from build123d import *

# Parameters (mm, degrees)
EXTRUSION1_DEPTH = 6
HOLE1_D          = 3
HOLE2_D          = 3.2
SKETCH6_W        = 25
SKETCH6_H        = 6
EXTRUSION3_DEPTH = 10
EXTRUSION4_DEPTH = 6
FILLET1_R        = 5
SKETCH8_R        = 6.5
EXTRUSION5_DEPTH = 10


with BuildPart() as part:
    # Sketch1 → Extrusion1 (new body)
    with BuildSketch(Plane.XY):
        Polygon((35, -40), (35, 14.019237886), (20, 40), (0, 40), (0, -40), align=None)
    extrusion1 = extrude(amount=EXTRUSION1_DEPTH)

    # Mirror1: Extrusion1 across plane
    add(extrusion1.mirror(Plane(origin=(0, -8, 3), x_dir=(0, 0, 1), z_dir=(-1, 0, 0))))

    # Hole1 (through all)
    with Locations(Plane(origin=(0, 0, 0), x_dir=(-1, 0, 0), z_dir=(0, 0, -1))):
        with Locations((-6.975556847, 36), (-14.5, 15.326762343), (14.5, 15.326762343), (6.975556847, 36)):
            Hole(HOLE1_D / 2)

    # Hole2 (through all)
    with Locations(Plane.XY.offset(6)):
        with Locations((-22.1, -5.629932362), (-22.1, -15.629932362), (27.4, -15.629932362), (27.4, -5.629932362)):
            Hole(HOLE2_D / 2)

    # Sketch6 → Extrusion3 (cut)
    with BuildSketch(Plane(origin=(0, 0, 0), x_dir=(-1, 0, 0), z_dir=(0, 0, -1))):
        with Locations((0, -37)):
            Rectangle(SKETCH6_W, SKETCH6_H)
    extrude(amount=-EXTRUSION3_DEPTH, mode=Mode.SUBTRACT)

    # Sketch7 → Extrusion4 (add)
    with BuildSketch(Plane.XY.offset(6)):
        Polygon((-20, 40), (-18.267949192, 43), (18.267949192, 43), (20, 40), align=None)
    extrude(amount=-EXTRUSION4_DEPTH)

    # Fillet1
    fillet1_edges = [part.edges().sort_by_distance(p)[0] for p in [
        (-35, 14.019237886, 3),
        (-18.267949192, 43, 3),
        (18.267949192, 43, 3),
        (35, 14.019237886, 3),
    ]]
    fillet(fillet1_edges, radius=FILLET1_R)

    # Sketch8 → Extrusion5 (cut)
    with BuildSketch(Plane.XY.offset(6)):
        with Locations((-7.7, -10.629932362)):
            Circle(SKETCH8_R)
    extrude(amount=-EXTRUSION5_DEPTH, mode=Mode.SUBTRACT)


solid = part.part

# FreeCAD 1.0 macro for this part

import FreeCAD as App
import Part
import Sketcher
Q = App.Units.Quantity


def edges_at(feature, points):
    """Names of the edges that pass closest to the given points."""
    edges = feature.Shape.Edges
    near = lambda p: min(range(len(edges)), key=lambda i: edges[i].distToShape(Part.Vertex(*p))[0])
    return sorted({f"Edge{near(p) + 1}" for p in points})

doc = App.newDocument("Part")
params = doc.addObject("Spreadsheet::Sheet", "Params")
for row, (alias, value) in enumerate([
    ("sketch1_width", "20 mm"),
    ("sketch1_width2", "35 mm"),
    ("sketch1_height", "80 mm"),
    ("pad1_length", "6 mm"),
    ("sketch2_diameter", "3 mm"),
    ("hole_diameter", "3 mm"),
    ("sketch3_diameter", "3.2 mm"),
    ("hole2_diameter", "3.2 mm"),
    ("sketch4_width", "25 mm"),
    ("sketch4_height", "6 mm"),
    ("pocket1_length", "10 mm"),
    ("sketch5_width", "40 mm"),
    ("pad2_length", "6 mm"),
    ("fillet_radius", "5 mm"),
    ("sketch6_diameter", "13 mm"),
    ("pocket2_length", "10 mm"),
], start=1):
    params.set(f"A{row}", alias)
    params.set(f"B{row}", "=" + value)
    params.setAlias(f"B{row}", alias)

body = doc.addObject("PartDesign::Body", "Body")

# Sketch on XY plane
sketch1 = body.newObject("Sketcher::SketchObject", "Sketch")
sketch1.AttachmentSupport = (doc.getObject("XY_Plane"), [""])
sketch1.MapMode = "FlatFace"
sketch1.addGeometry(Part.LineSegment(App.Vector(35, -40, 0), App.Vector(35, 14, 0)), False)
sketch1.addGeometry(Part.LineSegment(App.Vector(35, 14, 0), App.Vector(20, 40, 0)), False)
sketch1.addGeometry(Part.LineSegment(App.Vector(20, 40, 0), App.Vector(0, 40, 0)), False)
sketch1.addGeometry(Part.LineSegment(App.Vector(0, 40, 0), App.Vector(0, -40, 0)), False)
sketch1.addGeometry(Part.LineSegment(App.Vector(0, -40, 0), App.Vector(35, -40, 0)), False)
sketch1.addConstraint(Sketcher.Constraint("Coincident", 0, 2, 1, 1))
sketch1.addConstraint(Sketcher.Constraint("Coincident", 1, 2, 2, 1))
sketch1.addConstraint(Sketcher.Constraint("Coincident", 2, 2, 3, 1))
sketch1.addConstraint(Sketcher.Constraint("Coincident", 3, 2, 4, 1))
sketch1.addConstraint(Sketcher.Constraint("Coincident", 4, 2, 0, 1))
sketch1.addConstraint(Sketcher.Constraint("Vertical", 0))
sketch1.addConstraint(Sketcher.Constraint("Horizontal", 2))
sketch1.addConstraint(Sketcher.Constraint("Vertical", 3))
sketch1.addConstraint(Sketcher.Constraint("Horizontal", 4))
sketch1.addConstraint(Sketcher.Constraint("Symmetric", 2, 2, 3, 2, -1, 1))
sketch1.addConstraint(Sketcher.Constraint("DistanceX", 2, 2, 2, 1, 20.0))
sketch1.addConstraint(Sketcher.Constraint("DistanceX", 4, 1, 4, 2, 35.0))
sketch1.addConstraint(Sketcher.Constraint("DistanceY", 3, 2, 3, 1, 80.0))
sketch1.addConstraint(Sketcher.Constraint("Angle", 1, Q("120 deg")))
sketch1.setExpression("Constraints[10]", "Params.sketch1_width")
sketch1.setExpression("Constraints[11]", "Params.sketch1_width2")
sketch1.setExpression("Constraints[12]", "Params.sketch1_height")
pad1 = body.newObject("PartDesign::Pad", "Pad")
pad1.Profile = sketch1
pad1.setExpression("Length", "Params.pad1_length")
doc.recompute()

mirrored = body.newObject("PartDesign::Mirrored", "Mirrored")
mirrored.Originals = [pad1]
mirrored.MirrorPlane = (doc.getObject("YZ_Plane"), [""])
body.Tip = mirrored

# Sketch on XY plane
sketch2 = body.newObject("Sketcher::SketchObject", "Sketch001")
sketch2.AttachmentSupport = (doc.getObject("XY_Plane"), [""])
sketch2.MapMode = "FlatFace"
sketch2.addGeometry(Part.Circle(App.Vector(7, 36, 0), App.Vector(0, 0, 1), 1.5), False)
sketch2.addGeometry(Part.Circle(App.Vector(14.5, 15.3, 0), App.Vector(0, 0, 1), 1.5), False)
sketch2.addGeometry(Part.Circle(App.Vector(-14.5, 15.3, 0), App.Vector(0, 0, 1), 1.5), False)
sketch2.addGeometry(Part.Circle(App.Vector(-7, 36, 0), App.Vector(0, 0, 1), 1.5), False)
sketch2.addConstraint(Sketcher.Constraint("Equal", 0, 1))
sketch2.addConstraint(Sketcher.Constraint("Equal", 1, 2))
sketch2.addConstraint(Sketcher.Constraint("Equal", 2, 3))
sketch2.addConstraint(Sketcher.Constraint("Symmetric", 1, 3, 2, 3, -2))
sketch2.addConstraint(Sketcher.Constraint("Symmetric", 0, 3, 3, 3, -2))
sketch2.addConstraint(Sketcher.Constraint("Diameter", 0, 3.0))
sketch2.addConstraint(Sketcher.Constraint("DistanceY", -1, 1, 0, 3, 36.0))
sketch2.addConstraint(Sketcher.Constraint("DistanceX", 2, 3, 1, 3, 29.0))
sketch2.addConstraint(Sketcher.Constraint("DistanceX", -1, 1, 0, 3, 6.975557))
sketch2.addConstraint(Sketcher.Constraint("DistanceY", -1, 1, 1, 3, 15.326762))
sketch2.setExpression("Constraints[5]", "Params.sketch2_diameter")
doc.recompute()
hole = body.newObject("PartDesign::Hole", "Hole")
hole.Profile = sketch2
hole.ThreadType = "None"
hole.setExpression("Diameter", "Params.hole_diameter")
hole.DepthType = "ThroughAll"
hole.Reversed = True

# Sketch on XY plane
sketch3 = body.newObject("Sketcher::SketchObject", "Sketch002")
sketch3.AttachmentSupport = (doc.getObject("XY_Plane"), [""])
sketch3.MapMode = "FlatFace"
sketch3.AttachmentOffset = App.Placement(App.Vector(0, 0, 6), App.Rotation())
sketch3.addGeometry(Part.Circle(App.Vector(-22.1, -5.6, 0), App.Vector(0, 0, 1), 1.6), False)
sketch3.addGeometry(Part.Circle(App.Vector(-22.1, -15.6, 0), App.Vector(0, 0, 1), 1.6), False)
sketch3.addGeometry(Part.Circle(App.Vector(27.4, -15.6, 0), App.Vector(0, 0, 1), 1.6), False)
sketch3.addGeometry(Part.Circle(App.Vector(27.4, -5.6, 0), App.Vector(0, 0, 1), 1.6), False)
sketch3.addConstraint(Sketcher.Constraint("Equal", 0, 1))
sketch3.addConstraint(Sketcher.Constraint("Equal", 1, 2))
sketch3.addConstraint(Sketcher.Constraint("Equal", 2, 3))
sketch3.addConstraint(Sketcher.Constraint("Horizontal", 1, 3, 2, 3))
sketch3.addConstraint(Sketcher.Constraint("Horizontal", 0, 3, 3, 3))
sketch3.addConstraint(Sketcher.Constraint("Vertical", 0, 3, 1, 3))
sketch3.addConstraint(Sketcher.Constraint("Vertical", 2, 3, 3, 3))
sketch3.addConstraint(Sketcher.Constraint("Diameter", 0, 3.2))
sketch3.addConstraint(Sketcher.Constraint("DistanceY", 1, 3, 0, 3, 10.0))
sketch3.addConstraint(Sketcher.Constraint("DistanceX", 0, 3, -1, 1, 22.1))
sketch3.addConstraint(Sketcher.Constraint("DistanceX", -1, 1, 2, 3, 27.4))
sketch3.addConstraint(Sketcher.Constraint("DistanceY", 0, 3, -1, 1, 5.629932))
sketch3.setExpression("Constraints[7]", "Params.sketch3_diameter")
doc.recompute()
hole2 = body.newObject("PartDesign::Hole", "Hole001")
hole2.Profile = sketch3
hole2.ThreadType = "None"
hole2.setExpression("Diameter", "Params.hole2_diameter")
hole2.DepthType = "ThroughAll"

# Sketch on XY plane
sketch4 = body.newObject("Sketcher::SketchObject", "Sketch003")
sketch4.AttachmentSupport = (doc.getObject("XY_Plane"), [""])
sketch4.MapMode = "FlatFace"
sketch4.addGeometry(Part.LineSegment(App.Vector(12, -34, 0), App.Vector(12, -40, 0)), False)
sketch4.addGeometry(Part.LineSegment(App.Vector(12, -40, 0), App.Vector(-12, -40, 0)), False)
sketch4.addGeometry(Part.LineSegment(App.Vector(-12, -40, 0), App.Vector(-12, -34, 0)), False)
sketch4.addGeometry(Part.LineSegment(App.Vector(-12, -34, 0), App.Vector(12, -34, 0)), False)
sketch4.addConstraint(Sketcher.Constraint("Coincident", 0, 2, 1, 1))
sketch4.addConstraint(Sketcher.Constraint("Coincident", 1, 2, 2, 1))
sketch4.addConstraint(Sketcher.Constraint("Coincident", 2, 2, 3, 1))
sketch4.addConstraint(Sketcher.Constraint("Coincident", 3, 2, 0, 1))
sketch4.addConstraint(Sketcher.Constraint("Vertical", 0))
sketch4.addConstraint(Sketcher.Constraint("Horizontal", 1))
sketch4.addConstraint(Sketcher.Constraint("Vertical", 2))
sketch4.addConstraint(Sketcher.Constraint("Horizontal", 3))
sketch4.addConstraint(Sketcher.Constraint("DistanceX", 1, 2, 1, 1, 25.0))
sketch4.addConstraint(Sketcher.Constraint("DistanceY", 0, 2, 0, 1, 6.0))
sketch4.addConstraint(Sketcher.Constraint("DistanceY", 0, 2, -1, 1, 40.0))
sketch4.addConstraint(Sketcher.Constraint("DistanceX", -1, 1, 0, 2, 12.5))
sketch4.setExpression("Constraints[8]", "Params.sketch4_width")
sketch4.setExpression("Constraints[9]", "Params.sketch4_height")
pocket1 = body.newObject("PartDesign::Pocket", "Pocket")
pocket1.Profile = sketch4
pocket1.setExpression("Length", "Params.pocket1_length")
pocket1.Reversed = True

# Sketch on XY plane
sketch5 = body.newObject("Sketcher::SketchObject", "Sketch004")
sketch5.AttachmentSupport = (doc.getObject("XY_Plane"), [""])
sketch5.MapMode = "FlatFace"
sketch5.AttachmentOffset = App.Placement(App.Vector(0, 0, 6), App.Rotation())
sketch5.addGeometry(Part.LineSegment(App.Vector(-18.3, 43, 0), App.Vector(-20, 40, 0)), False)
sketch5.addGeometry(Part.LineSegment(App.Vector(-20, 40, 0), App.Vector(20, 40, 0)), False)
sketch5.addGeometry(Part.LineSegment(App.Vector(20, 40, 0), App.Vector(18.3, 43, 0)), False)
sketch5.addGeometry(Part.LineSegment(App.Vector(18.3, 43, 0), App.Vector(-18.3, 43, 0)), False)
sketch5.addConstraint(Sketcher.Constraint("Coincident", 0, 2, 1, 1))
sketch5.addConstraint(Sketcher.Constraint("Coincident", 1, 2, 2, 1))
sketch5.addConstraint(Sketcher.Constraint("Coincident", 2, 2, 3, 1))
sketch5.addConstraint(Sketcher.Constraint("Coincident", 3, 2, 0, 1))
sketch5.addConstraint(Sketcher.Constraint("Horizontal", 1))
sketch5.addConstraint(Sketcher.Constraint("Horizontal", 3))
sketch5.addConstraint(Sketcher.Constraint("Equal", 0, 2))
sketch5.addConstraint(Sketcher.Constraint("DistanceX", 1, 1, 1, 2, 40.0))
sketch5.addConstraint(Sketcher.Constraint("Angle", 0, Q("-120 deg")))
sketch5.addConstraint(Sketcher.Constraint("DistanceX", 0, 2, -1, 1, 20.0))
sketch5.addConstraint(Sketcher.Constraint("DistanceY", -1, 1, 0, 2, 40.0))
sketch5.addConstraint(Sketcher.Constraint("DistanceY", -1, 1, 2, 2, 43.0))
sketch5.setExpression("Constraints[7]", "Params.sketch5_width")
pad2 = body.newObject("PartDesign::Pad", "Pad001")
pad2.Profile = sketch5
pad2.setExpression("Length", "Params.pad2_length")
pad2.Reversed = True
doc.recompute()

fillet = body.newObject("PartDesign::Fillet", "Fillet")
fillet.Base = (pad2, edges_at(pad2, [
    (-35, 14.019, 3),
    (-18.268, 43, 3),
    (18.268, 43, 3),
    (35, 14.019, 3),
]))
fillet.setExpression("Radius", "Params.fillet_radius")

# Sketch on XY plane
sketch6 = body.newObject("Sketcher::SketchObject", "Sketch005")
sketch6.AttachmentSupport = (doc.getObject("XY_Plane"), [""])
sketch6.MapMode = "FlatFace"
sketch6.AttachmentOffset = App.Placement(App.Vector(0, 0, 6), App.Rotation())
sketch6.addGeometry(Part.Circle(App.Vector(-8, -11, 0), App.Vector(0, 0, 1), 6), False)
sketch6.addConstraint(Sketcher.Constraint("Diameter", 0, 13.0))
sketch6.addConstraint(Sketcher.Constraint("DistanceX", 0, 3, -1, 1, 7.7))
sketch6.addConstraint(Sketcher.Constraint("DistanceY", 0, 3, -1, 1, 10.629932))
sketch6.setExpression("Constraints[0]", "Params.sketch6_diameter")
pocket2 = body.newObject("PartDesign::Pocket", "Pocket001")
pocket2.Profile = sketch6
pocket2.setExpression("Length", "Params.pocket2_length")

doc.recompute()
